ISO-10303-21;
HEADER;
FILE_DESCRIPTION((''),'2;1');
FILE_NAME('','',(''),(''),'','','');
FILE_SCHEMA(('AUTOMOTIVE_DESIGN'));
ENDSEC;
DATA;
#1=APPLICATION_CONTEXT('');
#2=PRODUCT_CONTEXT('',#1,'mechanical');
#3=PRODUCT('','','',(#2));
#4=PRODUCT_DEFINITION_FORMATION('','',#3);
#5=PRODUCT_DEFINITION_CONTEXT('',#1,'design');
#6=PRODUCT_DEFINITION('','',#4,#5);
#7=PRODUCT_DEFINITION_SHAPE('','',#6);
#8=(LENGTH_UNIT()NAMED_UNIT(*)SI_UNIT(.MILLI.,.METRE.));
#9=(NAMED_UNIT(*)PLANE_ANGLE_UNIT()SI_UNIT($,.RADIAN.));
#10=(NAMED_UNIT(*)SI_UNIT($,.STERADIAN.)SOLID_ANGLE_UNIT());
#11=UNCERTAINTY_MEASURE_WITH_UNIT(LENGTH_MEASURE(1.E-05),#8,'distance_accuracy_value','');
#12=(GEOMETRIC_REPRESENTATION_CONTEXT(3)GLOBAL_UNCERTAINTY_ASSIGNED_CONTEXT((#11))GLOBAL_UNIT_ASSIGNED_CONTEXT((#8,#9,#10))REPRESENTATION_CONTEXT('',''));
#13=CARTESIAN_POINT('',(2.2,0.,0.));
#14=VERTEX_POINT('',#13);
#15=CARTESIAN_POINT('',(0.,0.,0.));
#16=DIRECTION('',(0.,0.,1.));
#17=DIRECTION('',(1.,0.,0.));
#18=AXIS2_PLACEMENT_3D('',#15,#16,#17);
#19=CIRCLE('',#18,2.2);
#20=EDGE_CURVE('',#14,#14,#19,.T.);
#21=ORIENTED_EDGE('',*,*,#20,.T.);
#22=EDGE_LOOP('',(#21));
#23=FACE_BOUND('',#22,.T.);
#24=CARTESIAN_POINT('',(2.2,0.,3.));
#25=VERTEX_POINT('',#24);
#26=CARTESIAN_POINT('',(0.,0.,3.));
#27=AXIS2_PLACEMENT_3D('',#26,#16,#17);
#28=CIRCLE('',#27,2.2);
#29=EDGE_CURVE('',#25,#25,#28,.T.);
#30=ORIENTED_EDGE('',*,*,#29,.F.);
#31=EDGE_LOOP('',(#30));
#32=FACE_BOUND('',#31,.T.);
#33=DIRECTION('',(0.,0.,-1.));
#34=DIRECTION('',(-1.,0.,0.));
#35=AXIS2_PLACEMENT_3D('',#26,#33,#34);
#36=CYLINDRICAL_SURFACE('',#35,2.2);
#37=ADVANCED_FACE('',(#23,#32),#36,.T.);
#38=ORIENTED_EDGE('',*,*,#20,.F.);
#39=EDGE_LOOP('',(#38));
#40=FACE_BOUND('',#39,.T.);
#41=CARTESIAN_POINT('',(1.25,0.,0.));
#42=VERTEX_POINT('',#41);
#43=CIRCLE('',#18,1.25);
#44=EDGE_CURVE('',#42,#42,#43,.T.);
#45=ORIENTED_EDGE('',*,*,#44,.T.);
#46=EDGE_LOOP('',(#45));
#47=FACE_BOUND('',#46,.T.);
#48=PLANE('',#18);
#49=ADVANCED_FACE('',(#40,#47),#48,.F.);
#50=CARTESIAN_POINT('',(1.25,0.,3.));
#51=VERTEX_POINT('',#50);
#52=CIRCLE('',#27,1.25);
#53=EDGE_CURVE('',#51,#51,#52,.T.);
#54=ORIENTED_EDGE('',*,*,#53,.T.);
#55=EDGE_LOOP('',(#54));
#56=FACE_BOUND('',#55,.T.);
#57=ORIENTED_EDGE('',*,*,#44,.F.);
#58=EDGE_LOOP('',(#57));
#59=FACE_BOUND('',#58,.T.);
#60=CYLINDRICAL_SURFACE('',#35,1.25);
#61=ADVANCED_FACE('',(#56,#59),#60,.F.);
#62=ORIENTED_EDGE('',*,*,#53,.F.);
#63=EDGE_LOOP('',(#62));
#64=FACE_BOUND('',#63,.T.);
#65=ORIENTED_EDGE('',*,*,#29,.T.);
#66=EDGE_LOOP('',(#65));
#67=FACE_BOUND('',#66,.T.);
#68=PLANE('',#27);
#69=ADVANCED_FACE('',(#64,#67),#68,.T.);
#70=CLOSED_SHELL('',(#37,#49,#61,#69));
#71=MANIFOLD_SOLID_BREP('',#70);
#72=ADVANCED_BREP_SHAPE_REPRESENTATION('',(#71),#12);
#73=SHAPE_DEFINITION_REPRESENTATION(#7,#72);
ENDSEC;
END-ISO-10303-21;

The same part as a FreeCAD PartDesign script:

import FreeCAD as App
import Part
import Sketcher

doc = App.newDocument("Part")
body = doc.addObject("PartDesign::Body", "Body")

# Sketch on XY plane
sketch1 = body.newObject("Sketcher::SketchObject", "Sketch")
sketch1.AttachmentSupport = (doc.getObject("XY_Plane"), [""])
sketch1.MapMode = "FlatFace"
sketch1.addGeometry(Part.Circle(App.Vector(0, 0, 0), App.Vector(0, 0, 1), 2.2), False)
sketch1.addGeometry(Part.Circle(App.Vector(0, 0, 0), App.Vector(0, 0, 1), 1.25), False)
sketch1.addConstraint(Sketcher.Constraint("Coincident", 0, 3, -1, 1))
sketch1.addConstraint(Sketcher.Constraint("Coincident", 1, 3, -1, 1))
sketch1.addConstraint(Sketcher.Constraint("Diameter", 0, 4.4))
sketch1.addConstraint(Sketcher.Constraint("Diameter", 1, 2.5))
pad1 = body.newObject("PartDesign::Pad", "Pad")
pad1.Profile = sketch1
pad1.Length = 3

doc.recompute()
